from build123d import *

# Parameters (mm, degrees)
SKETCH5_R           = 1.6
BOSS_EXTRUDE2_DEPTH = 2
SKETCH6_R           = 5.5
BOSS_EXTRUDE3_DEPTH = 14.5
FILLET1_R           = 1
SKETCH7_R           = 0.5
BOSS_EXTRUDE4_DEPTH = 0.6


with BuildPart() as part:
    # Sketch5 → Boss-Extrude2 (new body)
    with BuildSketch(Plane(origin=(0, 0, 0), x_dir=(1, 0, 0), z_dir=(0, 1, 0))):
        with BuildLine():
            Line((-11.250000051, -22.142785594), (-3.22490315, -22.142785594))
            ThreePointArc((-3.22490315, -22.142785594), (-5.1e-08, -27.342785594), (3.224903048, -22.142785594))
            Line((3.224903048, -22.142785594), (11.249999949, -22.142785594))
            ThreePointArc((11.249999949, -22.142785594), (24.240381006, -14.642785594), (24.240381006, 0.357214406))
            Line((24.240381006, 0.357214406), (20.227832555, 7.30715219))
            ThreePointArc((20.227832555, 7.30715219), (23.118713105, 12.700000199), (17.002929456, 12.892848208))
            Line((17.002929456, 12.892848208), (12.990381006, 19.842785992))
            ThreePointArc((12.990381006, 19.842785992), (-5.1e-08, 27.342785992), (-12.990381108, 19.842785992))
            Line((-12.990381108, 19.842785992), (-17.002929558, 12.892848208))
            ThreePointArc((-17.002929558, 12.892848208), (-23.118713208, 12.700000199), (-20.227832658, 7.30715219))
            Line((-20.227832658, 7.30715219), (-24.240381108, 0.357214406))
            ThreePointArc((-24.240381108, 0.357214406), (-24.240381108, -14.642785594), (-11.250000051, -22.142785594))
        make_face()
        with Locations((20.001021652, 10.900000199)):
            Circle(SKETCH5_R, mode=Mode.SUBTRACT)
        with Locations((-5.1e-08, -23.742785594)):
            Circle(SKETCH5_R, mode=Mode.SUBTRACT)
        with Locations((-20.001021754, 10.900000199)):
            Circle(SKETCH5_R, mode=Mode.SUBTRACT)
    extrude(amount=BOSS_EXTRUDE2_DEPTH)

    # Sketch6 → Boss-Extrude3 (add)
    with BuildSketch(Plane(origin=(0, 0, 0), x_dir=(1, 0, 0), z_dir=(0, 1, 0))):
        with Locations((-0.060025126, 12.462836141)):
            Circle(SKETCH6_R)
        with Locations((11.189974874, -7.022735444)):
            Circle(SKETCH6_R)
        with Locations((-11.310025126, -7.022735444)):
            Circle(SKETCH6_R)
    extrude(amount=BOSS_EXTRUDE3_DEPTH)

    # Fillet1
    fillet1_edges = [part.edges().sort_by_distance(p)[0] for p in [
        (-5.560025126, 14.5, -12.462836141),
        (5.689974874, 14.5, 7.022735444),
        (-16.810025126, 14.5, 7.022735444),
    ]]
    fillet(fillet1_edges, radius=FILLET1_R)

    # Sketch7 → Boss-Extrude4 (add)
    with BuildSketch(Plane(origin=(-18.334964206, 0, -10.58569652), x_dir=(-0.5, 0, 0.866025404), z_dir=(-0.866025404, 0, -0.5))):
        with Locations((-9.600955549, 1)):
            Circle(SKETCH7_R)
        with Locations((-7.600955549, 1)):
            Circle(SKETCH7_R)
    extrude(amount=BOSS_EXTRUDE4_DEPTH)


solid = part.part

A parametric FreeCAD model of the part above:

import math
import FreeCAD as App
import Part
import Sketcher
from FreeCAD import Vector
Q = App.Units.Quantity


def edges_at(feature, points):
    """Names of the edges that pass closest to the given points."""
    edges = feature.Shape.Edges
    near = lambda p: min(range(len(edges)), key=lambda i: edges[i].distToShape(Part.Vertex(*p))[0])
    return sorted({f"Edge{near(p) + 1}" for p in points})

doc = App.newDocument("Part")
body = doc.addObject("PartDesign::Body", "Body")

# Sketch on XZ plane
sketch1 = body.newObject("Sketcher::SketchObject", "Sketch")
sketch1.AttachmentSupport = (doc.getObject("XZ_Plane"), [""])
sketch1.MapMode = "FlatFace"
sketch1.addGeometry(Part.LineSegment(Vector(-11.25, 22.142786, 0), Vector(-3.224903, 22.142786, 0)), False)
sketch1.addGeometry(Part.ArcOfCircle(Part.Circle(Vector(0, 23.742786, 0), Vector(0, 0, 1), 3.6), math.radians(-26.3878), math.radians(206.3878)), False)
sketch1.addGeometry(Part.LineSegment(Vector(3.224903, 22.142786, 0), Vector(11.25, 22.142786, 0)), False)
sketch1.addGeometry(Part.ArcOfCircle(Part.Circle(Vector(11.25, 7.142786, 0), Vector(0, 0, 1), 15), math.radians(-30), math.radians(90)), False)
sketch1.addGeometry(Part.LineSegment(Vector(24.240381, -0.357214, 0), Vector(20.227833, -7.307152, 0)), False)
sketch1.addGeometry(Part.ArcOfCircle(Part.Circle(Vector(20.001022, -10.9, 0), Vector(0, 0, 1), 3.6), math.radians(-146.3878), math.radians(86.3878)), False)
sketch1.addGeometry(Part.LineSegment(Vector(17.002929, -12.892848, 0), Vector(12.990381, -19.842786, 0)), False)
sketch1.addGeometry(Part.ArcOfCircle(Part.Circle(Vector(0, -12.342786, 0), Vector(0, 0, 1), 15), math.radians(-150), math.radians(-30)), False)
sketch1.addGeometry(Part.LineSegment(Vector(-12.990381, -19.842786, 0), Vector(-17.00293, -12.892848, 0)), False)
sketch1.addGeometry(Part.ArcOfCircle(Part.Circle(Vector(-20.001022, -10.9, 0), Vector(0, 0, 1), 3.6), math.radians(93.6122), math.radians(326.3878)), False)
sketch1.addGeometry(Part.LineSegment(Vector(-20.227833, -7.307152, 0), Vector(-24.240381, -0.357214, 0)), False)
sketch1.addGeometry(Part.ArcOfCircle(Part.Circle(Vector(-11.25, 7.142786, 0), Vector(0, 0, 1), 15), math.radians(90), math.radians(210)), False)
sketch1.addGeometry(Part.Circle(Vector(0, 23.742786, 0), Vector(0, 0, 1), 1.6), False)
sketch1.addGeometry(Part.Circle(Vector(-20.001022, -10.9, 0), Vector(0, 0, 1), 1.6), False)
sketch1.addGeometry(Part.Circle(Vector(20.001022, -10.9, 0), Vector(0, 0, 1), 1.6), False)
sketch1.addConstraint(Sketcher.Constraint("Coincident", 0, 2, 1, 2))
sketch1.addConstraint(Sketcher.Constraint("Coincident", 1, 1, 2, 1))
sketch1.addConstraint(Sketcher.Constraint("Tangent", 2, 2, 3, 2))
sketch1.addConstraint(Sketcher.Constraint("Tangent", 3, 1, 4, 1))
sketch1.addConstraint(Sketcher.Constraint("Coincident", 4, 2, 5, 2))
sketch1.addConstraint(Sketcher.Constraint("Coincident", 5, 1, 6, 1))
sketch1.addConstraint(Sketcher.Constraint("Tangent", 6, 2, 7, 2))
sketch1.addConstraint(Sketcher.Constraint("Tangent", 7, 1, 8, 1))
sketch1.addConstraint(Sketcher.Constraint("Coincident", 8, 2, 9, 2))
sketch1.addConstraint(Sketcher.Constraint("Coincident", 9, 1, 10, 1))
sketch1.addConstraint(Sketcher.Constraint("Tangent", 10, 2, 11, 2))
sketch1.addConstraint(Sketcher.Constraint("Tangent", 11, 1, 0, 1))
sketch1.addConstraint(Sketcher.Constraint("Horizontal", 0))
sketch1.addConstraint(Sketcher.Constraint("Horizontal", 2))
sketch1.addConstraint(Sketcher.Constraint("Coincident", 12, 3, 1, 3))
sketch1.addConstraint(Sketcher.Constraint("Coincident", 13, 3, 9, 3))
sketch1.addConstraint(Sketcher.Constraint("Coincident", 14, 3, 5, 3))
sketch1.addConstraint(Sketcher.Constraint("Equal", 1, 5))
sketch1.addConstraint(Sketcher.Constraint("Equal", 3, 7))
sketch1.addConstraint(Sketcher.Constraint("Equal", 5, 9))
sketch1.addConstraint(Sketcher.Constraint("Equal", 7, 11))
sketch1.addConstraint(Sketcher.Constraint("Equal", 12, 13))
sketch1.addConstraint(Sketcher.Constraint("Equal", 13, 14))
sketch1.addConstraint(Sketcher.Constraint("Symmetric", 5, 3, 9, 3, -2))
sketch1.addConstraint(Sketcher.Constraint("Symmetric", 3, 3, 11, 3, -2))
sketch1.addConstraint(Sketcher.Constraint("Symmetric", 6, 2, 7, 1, -2))
sketch1.addConstraint(Sketcher.Constraint("PointOnObject", 1, 3, -2))
sketch1.addConstraint(Sketcher.Constraint("Parallel", 4, 6))
sketch1.addConstraint(Sketcher.Constraint("Parallel", 8, 10))
sketch1.addConstraint(Sketcher.Constraint("Equal", 4, 6))
sketch1.addConstraint(Sketcher.Constraint("Radius", 3, 15.0))
sketch1.addConstraint(Sketcher.Constraint("Diameter", 12, 3.2))
sketch1.addConstraint(Sketcher.Constraint("Radius", 1, 3.6))
sketch1.addConstraint(Sketcher.Constraint("Angle", 4, Q("-120 deg")))
sketch1.addConstraint(Sketcher.Constraint("DistanceY", 5, 3, -1, 1, 10.9))
sketch1.addConstraint(Sketcher.Constraint("DistanceY", 3, 3, 1, 3, 16.6))
sketch1.addConstraint(Sketcher.Constraint("DistanceX", 11, 3, 3, 3, 22.5))
sketch1.addConstraint(Sketcher.Constraint("DistanceX", -1, 1, 5, 3, 20.001022))
sketch1.addConstraint(Sketcher.Constraint("DistanceX", -1, 1, 5, 1, 17.002929))
pad1 = body.newObject("PartDesign::Pad", "Pad")
pad1.Profile = sketch1
pad1.Length = 2
pad1.Reversed = True

# Sketch on XZ plane
sketch2 = body.newObject("Sketcher::SketchObject", "Sketch001")
sketch2.AttachmentSupport = (doc.getObject("XZ_Plane"), [""])
sketch2.MapMode = "FlatFace"
sketch2.addGeometry(Part.Circle(Vector(-0.060025, -12.462836, 0), Vector(0, 0, 1), 5.5), False)
sketch2.addGeometry(Part.Circle(Vector(11.189975, 7.022735, 0), Vector(0, 0, 1), 5.5), False)
sketch2.addGeometry(Part.Circle(Vector(-11.310025, 7.022735, 0), Vector(0, 0, 1), 5.5), False)
sketch2.addConstraint(Sketcher.Constraint("Equal", 0, 1))
sketch2.addConstraint(Sketcher.Constraint("Equal", 1, 2))
sketch2.addConstraint(Sketcher.Constraint("Horizontal", 1, 3, 2, 3))
sketch2.addConstraint(Sketcher.Constraint("Diameter", 0, 11.0))
sketch2.addConstraint(Sketcher.Constraint("DistanceX", 2, 3, 1, 3, 22.5))
sketch2.addConstraint(Sketcher.Constraint("DistanceX", 0, 3, 1, 3, 11.25))
sketch2.addConstraint(Sketcher.Constraint("DistanceY", 0, 3, 1, 3, 19.485572))
sketch2.addConstraint(Sketcher.Constraint("DistanceX", 0, 3, -1, 1, 0.060025))
sketch2.addConstraint(Sketcher.Constraint("DistanceY", 0, 3, -1, 1, 12.462836))
pad2 = body.newObject("PartDesign::Pad", "Pad001")
pad2.Profile = sketch2
pad2.Length = 14.5
pad2.Reversed = True
doc.recompute()

fillet = body.newObject("PartDesign::Fillet", "Fillet")
fillet.Base = (pad2, edges_at(pad2, [(-5.56, 14.5, -12.463), (5.69, 14.5, 7.023), (-16.81, 14.5, 7.023)]))
fillet.Radius = 1

# Sketch on an angled plane
sketch3 = body.newObject("Sketcher::SketchObject", "Sketch002")
sketch3.Placement = App.Placement(Vector(-18.334964, 0, -10.585697), App.Rotation(Vector(-0.5, 0, 0.866025404), Vector(0, 1, 0), Vector(-0.866025404, 0, -0.5), "ZXY"))
sketch3.addGeometry(Part.Circle(Vector(-9.600956, 1, 0), Vector(0, 0, 1), 0.5), False)
sketch3.addGeometry(Part.Circle(Vector(-7.600956, 1, 0), Vector(0, 0, 1), 0.5), False)
sketch3.addConstraint(Sketcher.Constraint("Equal", 0, 1))
sketch3.addConstraint(Sketcher.Constraint("Horizontal", 0, 3, 1, 3))
sketch3.addConstraint(Sketcher.Constraint("Diameter", 0, 1.0))
sketch3.addConstraint(Sketcher.Constraint("DistanceY", -1, 1, 0, 3, 1.0))
sketch3.addConstraint(Sketcher.Constraint("DistanceX", 0, 3, 1, 3, 2.0))
sketch3.addConstraint(Sketcher.Constraint("DistanceX", 0, 3, -1, 1, 9.600956))
pad3 = body.newObject("PartDesign::Pad", "Pad002")
pad3.Profile = sketch3
pad3.Length = 0.6

doc.recompute()
